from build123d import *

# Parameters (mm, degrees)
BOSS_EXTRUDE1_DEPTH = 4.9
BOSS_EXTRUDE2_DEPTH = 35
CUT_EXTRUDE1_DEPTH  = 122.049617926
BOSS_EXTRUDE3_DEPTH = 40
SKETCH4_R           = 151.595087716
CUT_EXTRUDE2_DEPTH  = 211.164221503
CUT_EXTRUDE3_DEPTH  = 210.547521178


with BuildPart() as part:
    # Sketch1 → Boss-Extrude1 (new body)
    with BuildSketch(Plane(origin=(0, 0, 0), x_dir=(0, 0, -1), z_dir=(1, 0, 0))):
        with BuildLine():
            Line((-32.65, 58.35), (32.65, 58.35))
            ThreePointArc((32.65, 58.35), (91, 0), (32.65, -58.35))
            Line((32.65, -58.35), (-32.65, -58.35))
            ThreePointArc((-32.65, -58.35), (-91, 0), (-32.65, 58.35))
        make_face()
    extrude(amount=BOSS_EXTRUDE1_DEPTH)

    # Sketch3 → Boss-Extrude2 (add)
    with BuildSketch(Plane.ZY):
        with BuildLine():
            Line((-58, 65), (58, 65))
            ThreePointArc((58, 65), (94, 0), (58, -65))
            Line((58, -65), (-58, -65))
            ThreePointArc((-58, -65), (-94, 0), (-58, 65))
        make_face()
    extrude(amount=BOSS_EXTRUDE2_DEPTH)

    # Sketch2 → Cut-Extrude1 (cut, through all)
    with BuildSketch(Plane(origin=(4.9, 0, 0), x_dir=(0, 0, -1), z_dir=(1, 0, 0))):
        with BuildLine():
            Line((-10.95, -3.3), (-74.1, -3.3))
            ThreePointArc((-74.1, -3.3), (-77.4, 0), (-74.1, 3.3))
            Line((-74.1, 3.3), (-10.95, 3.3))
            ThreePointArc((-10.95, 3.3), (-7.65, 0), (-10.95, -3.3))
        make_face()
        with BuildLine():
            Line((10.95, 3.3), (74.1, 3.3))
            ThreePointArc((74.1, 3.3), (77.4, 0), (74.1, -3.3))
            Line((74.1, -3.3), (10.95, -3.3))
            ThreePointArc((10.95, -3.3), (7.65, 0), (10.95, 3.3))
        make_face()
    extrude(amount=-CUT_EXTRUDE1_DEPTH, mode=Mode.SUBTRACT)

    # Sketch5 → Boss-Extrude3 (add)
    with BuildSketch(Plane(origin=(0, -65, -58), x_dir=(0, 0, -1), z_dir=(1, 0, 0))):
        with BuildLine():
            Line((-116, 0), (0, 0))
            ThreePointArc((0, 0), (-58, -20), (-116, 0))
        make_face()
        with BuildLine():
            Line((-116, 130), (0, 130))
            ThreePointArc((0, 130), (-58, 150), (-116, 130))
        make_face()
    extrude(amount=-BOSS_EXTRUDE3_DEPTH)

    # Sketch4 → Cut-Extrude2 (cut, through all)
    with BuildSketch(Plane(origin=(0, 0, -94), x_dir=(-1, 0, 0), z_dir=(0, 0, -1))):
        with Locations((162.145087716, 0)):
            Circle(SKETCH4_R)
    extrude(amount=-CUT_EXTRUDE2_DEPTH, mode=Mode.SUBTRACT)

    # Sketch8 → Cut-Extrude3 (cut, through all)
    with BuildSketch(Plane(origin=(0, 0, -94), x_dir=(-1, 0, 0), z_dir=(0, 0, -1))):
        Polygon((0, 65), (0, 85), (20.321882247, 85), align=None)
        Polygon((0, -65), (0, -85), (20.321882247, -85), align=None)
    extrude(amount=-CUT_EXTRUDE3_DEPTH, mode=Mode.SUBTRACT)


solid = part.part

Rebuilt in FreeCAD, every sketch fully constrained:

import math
import FreeCAD as App
import Part
import Sketcher
from FreeCAD import Vector
Q = App.Units.Quantity

doc = App.newDocument("Part")
body = doc.addObject("PartDesign::Body", "Body")

# Sketch on YZ plane
sketch1 = body.newObject("Sketcher::SketchObject", "Sketch")
sketch1.AttachmentSupport = (doc.getObject("YZ_Plane"), [""])
sketch1.MapMode = "FlatFace"
sketch1.addGeometry([
    Part.LineSegment(Vector(58, -33, 0), Vector(58, 33, 0)),
    Part.ArcOfCircle(Part.Circle(Vector(0, 33, 0), Vector(0, 0, 1), 58), math.radians(0), math.radians(180)),
    Part.LineSegment(Vector(-58, 33, 0), Vector(-58, -33, 0)),
    Part.ArcOfCircle(Part.Circle(Vector(0, -33, 0), Vector(0, 0, 1), 58), math.radians(180), math.radians(360)),
], False)
sketch1.addConstraint([
    Sketcher.Constraint("Tangent", 0, 2, 1, 1),
    Sketcher.Constraint("Tangent", 1, 2, 2, 1),
    Sketcher.Constraint("Tangent", 2, 2, 3, 1),
    Sketcher.Constraint("Tangent", 3, 2, 0, 1),
    Sketcher.Constraint("Vertical", 0),
    Sketcher.Constraint("Vertical", 2),
    Sketcher.Constraint("Symmetric", 1, 3, 3, 3, -1, 1),
    Sketcher.Constraint("Radius", 1, Q("58.35 mm")),
    Sketcher.Constraint("DistanceY", 0, 1, 0, 2, Q("65.3 mm")),
])
pad1 = body.newObject("PartDesign::Pad", "Pad")
pad1.Profile = sketch1
pad1.Length = 4.9

# Sketch on YZ plane
sketch2 = body.newObject("Sketcher::SketchObject", "Sketch001")
sketch2.AttachmentSupport = (doc.getObject("YZ_Plane"), [""])
sketch2.MapMode = "FlatFace"
sketch2.addGeometry([
    Part.LineSegment(Vector(65, 58, 0), Vector(65, -58, 0)),
    Part.ArcOfCircle(Part.Circle(Vector(0, -17, 0), Vector(0, 0, 1), 77), math.radians(-148), math.radians(-32)),
    Part.LineSegment(Vector(-65, -58, 0), Vector(-65, 58, 0)),
    Part.ArcOfCircle(Part.Circle(Vector(0, 17, 0), Vector(0, 0, 1), 77), math.radians(32), math.radians(148)),
], False)
sketch2.addConstraint([
    Sketcher.Constraint("Coincident", 0, 2, 1, 2),
    Sketcher.Constraint("Coincident", 1, 1, 2, 1),
    Sketcher.Constraint("Coincident", 2, 2, 3, 2),
    Sketcher.Constraint("Coincident", 3, 1, 0, 1),
    Sketcher.Constraint("Vertical", 0),
    Sketcher.Constraint("Vertical", 2),
    Sketcher.Constraint("Equal", 1, 3),
    Sketcher.Constraint("Symmetric", 1, 3, 3, 3, -1, 1),
    Sketcher.Constraint("Symmetric", 0, 2, 1, 1, -2),
    Sketcher.Constraint("DistanceY", 0, 2, 0, 1, Q("116 mm")),
    Sketcher.Constraint("DistanceX", -1, 1, 0, 2, Q("65 mm")),
    Sketcher.Constraint("Radius", 1, Q("76.680556 mm")),
])
pad2 = body.newObject("PartDesign::Pad", "Pad001")
pad2.Profile = sketch2
pad2.Length = 35
pad2.Reversed = True

# Sketch on YZ plane
sketch3 = body.newObject("Sketcher::SketchObject", "Sketch002")
sketch3.AttachmentSupport = (doc.getObject("YZ_Plane"), [""])
sketch3.MapMode = "FlatFace"
sketch3.AttachmentOffset = App.Placement(Vector(0, 0, 4.9), App.Rotation())
sketch3.addGeometry([
    Part.LineSegment(Vector(-3.3, 74.1, 0), Vector(-3.3, 10.9, 0)),  # 0
    Part.ArcOfCircle(Part.Circle(Vector(0, 10.9, 0), Vector(0, 0, 1), 3.3), math.radians(180), math.radians(360)),  # 1
    Part.LineSegment(Vector(3.3, 10.9, 0), Vector(3.3, 74.1, 0)),  # 2
    Part.ArcOfCircle(Part.Circle(Vector(0, 74.1, 0), Vector(0, 0, 1), 3.3), math.radians(0), math.radians(180)),  # 3
    Part.LineSegment(Vector(3.3, -74.1, 0), Vector(3.3, -10.9, 0)),  # 4
    Part.ArcOfCircle(Part.Circle(Vector(0, -10.9, 0), Vector(0, 0, 1), 3.3), math.radians(0), math.radians(180)),  # 5
    Part.LineSegment(Vector(-3.3, -10.9, 0), Vector(-3.3, -74.1, 0)),  # 6
    Part.ArcOfCircle(Part.Circle(Vector(0, -74.1, 0), Vector(0, 0, 1), 3.3), math.radians(180), math.radians(360)),  # 7
], False)
sketch3.addConstraint([
    Sketcher.Constraint("Tangent", 0, 2, 1, 1),
    Sketcher.Constraint("Tangent", 1, 2, 2, 1),
    Sketcher.Constraint("Tangent", 2, 2, 3, 1),
    Sketcher.Constraint("Tangent", 3, 2, 0, 1),
    Sketcher.Constraint("Tangent", 4, 2, 5, 1),
    Sketcher.Constraint("Tangent", 5, 2, 6, 1),
    Sketcher.Constraint("Tangent", 6, 2, 7, 1),
    Sketcher.Constraint("Tangent", 7, 2, 4, 1),
    Sketcher.Constraint("Vertical", 0),
    Sketcher.Constraint("Vertical", 2),
    Sketcher.Constraint("Vertical", 4),
    Sketcher.Constraint("Vertical", 6),
    Sketcher.Constraint("Equal", 3, 5),
    Sketcher.Constraint("Symmetric", 1, 3, 5, 3, -1, 1),
    Sketcher.Constraint("Symmetric", 3, 3, 7, 3, -1),
    Sketcher.Constraint("Radius", 1, Q("3.3 mm")),
    Sketcher.Constraint("DistanceY", 0, 2, 0, 1, Q("63.15 mm")),
    Sketcher.Constraint("DistanceY", -1, 1, 3, 3, Q("74.1 mm")),
])
pocket1 = body.newObject("PartDesign::Pocket", "Pocket")
pocket1.Profile = sketch3
pocket1.Type = "ThroughAll"

# Sketch on YZ plane
sketch4 = body.newObject("Sketcher::SketchObject", "Sketch003")
sketch4.AttachmentSupport = (doc.getObject("YZ_Plane"), [""])
sketch4.MapMode = "FlatFace"
sketch4.addGeometry([
    Part.LineSegment(Vector(-65, -58, 0), Vector(-65, 58, 0)),
    Part.ArcOfCircle(Part.Circle(Vector(9, 0, 0), Vector(0, 0, 1), 94), math.radians(142), math.radians(218)),
    Part.LineSegment(Vector(65, 58, 0), Vector(65, -58, 0)),
    Part.ArcOfCircle(Part.Circle(Vector(-9, 0, 0), Vector(0, 0, 1), 94), math.radians(-38), math.radians(38)),
], False)
sketch4.addConstraint([
    Sketcher.Constraint("Coincident", 0, 1, 1, 2),
    Sketcher.Constraint("Coincident", 1, 1, 0, 2),
    Sketcher.Constraint("Coincident", 2, 1, 3, 2),
    Sketcher.Constraint("Coincident", 3, 1, 2, 2),
    Sketcher.Constraint("Vertical", 0),
    Sketcher.Constraint("Vertical", 2),
    Sketcher.Constraint("Equal", 1, 3),
    Sketcher.Constraint("Symmetric", 1, 3, 3, 3, -1, 1),
    Sketcher.Constraint("Symmetric", 1, 1, 2, 1, -2),
    Sketcher.Constraint("Radius", 1, Q("94.1 mm")),
    Sketcher.Constraint("DistanceY", 0, 1, 0, 2, Q("116 mm")),
    Sketcher.Constraint("DistanceX", 0, 1, -1, 1, Q("65 mm")),
])
pad3 = body.newObject("PartDesign::Pad", "Pad002")
pad3.Profile = sketch4
pad3.Length = 40
pad3.Reversed = True

# Sketch on XY plane
sketch5 = body.newObject("Sketcher::SketchObject", "Sketch004")
sketch5.AttachmentSupport = (doc.getObject("XY_Plane"), [""])
sketch5.MapMode = "FlatFace"
sketch5.AttachmentOffset = App.Placement(Vector(0, 0, -94), App.Rotation())
sketch5.addGeometry(Part.Circle(Vector(-162, 0, 0), Vector(0, 0, 1), 152), False)
sketch5.addConstraint([
    Sketcher.Constraint("PointOnObject", 0, 3, -1),
    Sketcher.Constraint("Diameter", 0, Q("303.190175 mm")),
    Sketcher.Constraint("DistanceX", 0, 3, -1, 1, Q("162.145088 mm")),
])
pocket2 = body.newObject("PartDesign::Pocket", "Pocket001")
pocket2.Profile = sketch5
pocket2.Type = "ThroughAll"
pocket2.Reversed = True

# Sketch on XY plane
sketch6 = body.newObject("Sketcher::SketchObject", "Sketch005")
sketch6.AttachmentSupport = (doc.getObject("XY_Plane"), [""])
sketch6.MapMode = "FlatFace"
sketch6.AttachmentOffset = App.Placement(Vector(0, 0, -94), App.Rotation())
sketch6.addGeometry([
    Part.LineSegment(Vector(0, 85, 0), Vector(0, 65, 0)),  # 0
    Part.LineSegment(Vector(0, 65, 0), Vector(-20, 85, 0)),  # 1
    Part.LineSegment(Vector(-20, 85, 0), Vector(0, 85, 0)),  # 2
    Part.LineSegment(Vector(0, -65, 0), Vector(0, -85, 0)),  # 3
    Part.LineSegment(Vector(0, -85, 0), Vector(-20, -85, 0)),  # 4
    Part.LineSegment(Vector(-20, -85, 0), Vector(0, -65, 0)),  # 5
], False)
sketch6.addConstraint([
    Sketcher.Constraint("Coincident", 0, 2, 1, 1),
    Sketcher.Constraint("Coincident", 1, 2, 2, 1),
    Sketcher.Constraint("Coincident", 2, 2, 0, 1),
    Sketcher.Constraint("Coincident", 3, 2, 4, 1),
    Sketcher.Constraint("Coincident", 4, 2, 5, 1),
    Sketcher.Constraint("Coincident", 5, 2, 3, 1),
    Sketcher.Constraint("Vertical", 0),
    Sketcher.Constraint("Horizontal", 2),
    Sketcher.Constraint("Vertical", 3),
    Sketcher.Constraint("Horizontal", 4),
    Sketcher.Constraint("Symmetric", 2, 2, 3, 2, -1, 1),
    Sketcher.Constraint("Symmetric", 0, 2, 5, 2, -1),
    Sketcher.Constraint("Vertical", 1, 2, 4, 2),
    Sketcher.Constraint("DistanceY", 0, 2, 0, 1, Q("20 mm")),
    Sketcher.Constraint("DistanceY", -1, 1, 0, 2, Q("65 mm")),
    Sketcher.Constraint("DistanceX", 2, 1, 2, 2, Q("20.321882 mm")),
])
pocket3 = body.newObject("PartDesign::Pocket", "Pocket002")
pocket3.Profile = sketch6
pocket3.Type = "ThroughAll"
pocket3.Reversed = True

doc.recompute()
